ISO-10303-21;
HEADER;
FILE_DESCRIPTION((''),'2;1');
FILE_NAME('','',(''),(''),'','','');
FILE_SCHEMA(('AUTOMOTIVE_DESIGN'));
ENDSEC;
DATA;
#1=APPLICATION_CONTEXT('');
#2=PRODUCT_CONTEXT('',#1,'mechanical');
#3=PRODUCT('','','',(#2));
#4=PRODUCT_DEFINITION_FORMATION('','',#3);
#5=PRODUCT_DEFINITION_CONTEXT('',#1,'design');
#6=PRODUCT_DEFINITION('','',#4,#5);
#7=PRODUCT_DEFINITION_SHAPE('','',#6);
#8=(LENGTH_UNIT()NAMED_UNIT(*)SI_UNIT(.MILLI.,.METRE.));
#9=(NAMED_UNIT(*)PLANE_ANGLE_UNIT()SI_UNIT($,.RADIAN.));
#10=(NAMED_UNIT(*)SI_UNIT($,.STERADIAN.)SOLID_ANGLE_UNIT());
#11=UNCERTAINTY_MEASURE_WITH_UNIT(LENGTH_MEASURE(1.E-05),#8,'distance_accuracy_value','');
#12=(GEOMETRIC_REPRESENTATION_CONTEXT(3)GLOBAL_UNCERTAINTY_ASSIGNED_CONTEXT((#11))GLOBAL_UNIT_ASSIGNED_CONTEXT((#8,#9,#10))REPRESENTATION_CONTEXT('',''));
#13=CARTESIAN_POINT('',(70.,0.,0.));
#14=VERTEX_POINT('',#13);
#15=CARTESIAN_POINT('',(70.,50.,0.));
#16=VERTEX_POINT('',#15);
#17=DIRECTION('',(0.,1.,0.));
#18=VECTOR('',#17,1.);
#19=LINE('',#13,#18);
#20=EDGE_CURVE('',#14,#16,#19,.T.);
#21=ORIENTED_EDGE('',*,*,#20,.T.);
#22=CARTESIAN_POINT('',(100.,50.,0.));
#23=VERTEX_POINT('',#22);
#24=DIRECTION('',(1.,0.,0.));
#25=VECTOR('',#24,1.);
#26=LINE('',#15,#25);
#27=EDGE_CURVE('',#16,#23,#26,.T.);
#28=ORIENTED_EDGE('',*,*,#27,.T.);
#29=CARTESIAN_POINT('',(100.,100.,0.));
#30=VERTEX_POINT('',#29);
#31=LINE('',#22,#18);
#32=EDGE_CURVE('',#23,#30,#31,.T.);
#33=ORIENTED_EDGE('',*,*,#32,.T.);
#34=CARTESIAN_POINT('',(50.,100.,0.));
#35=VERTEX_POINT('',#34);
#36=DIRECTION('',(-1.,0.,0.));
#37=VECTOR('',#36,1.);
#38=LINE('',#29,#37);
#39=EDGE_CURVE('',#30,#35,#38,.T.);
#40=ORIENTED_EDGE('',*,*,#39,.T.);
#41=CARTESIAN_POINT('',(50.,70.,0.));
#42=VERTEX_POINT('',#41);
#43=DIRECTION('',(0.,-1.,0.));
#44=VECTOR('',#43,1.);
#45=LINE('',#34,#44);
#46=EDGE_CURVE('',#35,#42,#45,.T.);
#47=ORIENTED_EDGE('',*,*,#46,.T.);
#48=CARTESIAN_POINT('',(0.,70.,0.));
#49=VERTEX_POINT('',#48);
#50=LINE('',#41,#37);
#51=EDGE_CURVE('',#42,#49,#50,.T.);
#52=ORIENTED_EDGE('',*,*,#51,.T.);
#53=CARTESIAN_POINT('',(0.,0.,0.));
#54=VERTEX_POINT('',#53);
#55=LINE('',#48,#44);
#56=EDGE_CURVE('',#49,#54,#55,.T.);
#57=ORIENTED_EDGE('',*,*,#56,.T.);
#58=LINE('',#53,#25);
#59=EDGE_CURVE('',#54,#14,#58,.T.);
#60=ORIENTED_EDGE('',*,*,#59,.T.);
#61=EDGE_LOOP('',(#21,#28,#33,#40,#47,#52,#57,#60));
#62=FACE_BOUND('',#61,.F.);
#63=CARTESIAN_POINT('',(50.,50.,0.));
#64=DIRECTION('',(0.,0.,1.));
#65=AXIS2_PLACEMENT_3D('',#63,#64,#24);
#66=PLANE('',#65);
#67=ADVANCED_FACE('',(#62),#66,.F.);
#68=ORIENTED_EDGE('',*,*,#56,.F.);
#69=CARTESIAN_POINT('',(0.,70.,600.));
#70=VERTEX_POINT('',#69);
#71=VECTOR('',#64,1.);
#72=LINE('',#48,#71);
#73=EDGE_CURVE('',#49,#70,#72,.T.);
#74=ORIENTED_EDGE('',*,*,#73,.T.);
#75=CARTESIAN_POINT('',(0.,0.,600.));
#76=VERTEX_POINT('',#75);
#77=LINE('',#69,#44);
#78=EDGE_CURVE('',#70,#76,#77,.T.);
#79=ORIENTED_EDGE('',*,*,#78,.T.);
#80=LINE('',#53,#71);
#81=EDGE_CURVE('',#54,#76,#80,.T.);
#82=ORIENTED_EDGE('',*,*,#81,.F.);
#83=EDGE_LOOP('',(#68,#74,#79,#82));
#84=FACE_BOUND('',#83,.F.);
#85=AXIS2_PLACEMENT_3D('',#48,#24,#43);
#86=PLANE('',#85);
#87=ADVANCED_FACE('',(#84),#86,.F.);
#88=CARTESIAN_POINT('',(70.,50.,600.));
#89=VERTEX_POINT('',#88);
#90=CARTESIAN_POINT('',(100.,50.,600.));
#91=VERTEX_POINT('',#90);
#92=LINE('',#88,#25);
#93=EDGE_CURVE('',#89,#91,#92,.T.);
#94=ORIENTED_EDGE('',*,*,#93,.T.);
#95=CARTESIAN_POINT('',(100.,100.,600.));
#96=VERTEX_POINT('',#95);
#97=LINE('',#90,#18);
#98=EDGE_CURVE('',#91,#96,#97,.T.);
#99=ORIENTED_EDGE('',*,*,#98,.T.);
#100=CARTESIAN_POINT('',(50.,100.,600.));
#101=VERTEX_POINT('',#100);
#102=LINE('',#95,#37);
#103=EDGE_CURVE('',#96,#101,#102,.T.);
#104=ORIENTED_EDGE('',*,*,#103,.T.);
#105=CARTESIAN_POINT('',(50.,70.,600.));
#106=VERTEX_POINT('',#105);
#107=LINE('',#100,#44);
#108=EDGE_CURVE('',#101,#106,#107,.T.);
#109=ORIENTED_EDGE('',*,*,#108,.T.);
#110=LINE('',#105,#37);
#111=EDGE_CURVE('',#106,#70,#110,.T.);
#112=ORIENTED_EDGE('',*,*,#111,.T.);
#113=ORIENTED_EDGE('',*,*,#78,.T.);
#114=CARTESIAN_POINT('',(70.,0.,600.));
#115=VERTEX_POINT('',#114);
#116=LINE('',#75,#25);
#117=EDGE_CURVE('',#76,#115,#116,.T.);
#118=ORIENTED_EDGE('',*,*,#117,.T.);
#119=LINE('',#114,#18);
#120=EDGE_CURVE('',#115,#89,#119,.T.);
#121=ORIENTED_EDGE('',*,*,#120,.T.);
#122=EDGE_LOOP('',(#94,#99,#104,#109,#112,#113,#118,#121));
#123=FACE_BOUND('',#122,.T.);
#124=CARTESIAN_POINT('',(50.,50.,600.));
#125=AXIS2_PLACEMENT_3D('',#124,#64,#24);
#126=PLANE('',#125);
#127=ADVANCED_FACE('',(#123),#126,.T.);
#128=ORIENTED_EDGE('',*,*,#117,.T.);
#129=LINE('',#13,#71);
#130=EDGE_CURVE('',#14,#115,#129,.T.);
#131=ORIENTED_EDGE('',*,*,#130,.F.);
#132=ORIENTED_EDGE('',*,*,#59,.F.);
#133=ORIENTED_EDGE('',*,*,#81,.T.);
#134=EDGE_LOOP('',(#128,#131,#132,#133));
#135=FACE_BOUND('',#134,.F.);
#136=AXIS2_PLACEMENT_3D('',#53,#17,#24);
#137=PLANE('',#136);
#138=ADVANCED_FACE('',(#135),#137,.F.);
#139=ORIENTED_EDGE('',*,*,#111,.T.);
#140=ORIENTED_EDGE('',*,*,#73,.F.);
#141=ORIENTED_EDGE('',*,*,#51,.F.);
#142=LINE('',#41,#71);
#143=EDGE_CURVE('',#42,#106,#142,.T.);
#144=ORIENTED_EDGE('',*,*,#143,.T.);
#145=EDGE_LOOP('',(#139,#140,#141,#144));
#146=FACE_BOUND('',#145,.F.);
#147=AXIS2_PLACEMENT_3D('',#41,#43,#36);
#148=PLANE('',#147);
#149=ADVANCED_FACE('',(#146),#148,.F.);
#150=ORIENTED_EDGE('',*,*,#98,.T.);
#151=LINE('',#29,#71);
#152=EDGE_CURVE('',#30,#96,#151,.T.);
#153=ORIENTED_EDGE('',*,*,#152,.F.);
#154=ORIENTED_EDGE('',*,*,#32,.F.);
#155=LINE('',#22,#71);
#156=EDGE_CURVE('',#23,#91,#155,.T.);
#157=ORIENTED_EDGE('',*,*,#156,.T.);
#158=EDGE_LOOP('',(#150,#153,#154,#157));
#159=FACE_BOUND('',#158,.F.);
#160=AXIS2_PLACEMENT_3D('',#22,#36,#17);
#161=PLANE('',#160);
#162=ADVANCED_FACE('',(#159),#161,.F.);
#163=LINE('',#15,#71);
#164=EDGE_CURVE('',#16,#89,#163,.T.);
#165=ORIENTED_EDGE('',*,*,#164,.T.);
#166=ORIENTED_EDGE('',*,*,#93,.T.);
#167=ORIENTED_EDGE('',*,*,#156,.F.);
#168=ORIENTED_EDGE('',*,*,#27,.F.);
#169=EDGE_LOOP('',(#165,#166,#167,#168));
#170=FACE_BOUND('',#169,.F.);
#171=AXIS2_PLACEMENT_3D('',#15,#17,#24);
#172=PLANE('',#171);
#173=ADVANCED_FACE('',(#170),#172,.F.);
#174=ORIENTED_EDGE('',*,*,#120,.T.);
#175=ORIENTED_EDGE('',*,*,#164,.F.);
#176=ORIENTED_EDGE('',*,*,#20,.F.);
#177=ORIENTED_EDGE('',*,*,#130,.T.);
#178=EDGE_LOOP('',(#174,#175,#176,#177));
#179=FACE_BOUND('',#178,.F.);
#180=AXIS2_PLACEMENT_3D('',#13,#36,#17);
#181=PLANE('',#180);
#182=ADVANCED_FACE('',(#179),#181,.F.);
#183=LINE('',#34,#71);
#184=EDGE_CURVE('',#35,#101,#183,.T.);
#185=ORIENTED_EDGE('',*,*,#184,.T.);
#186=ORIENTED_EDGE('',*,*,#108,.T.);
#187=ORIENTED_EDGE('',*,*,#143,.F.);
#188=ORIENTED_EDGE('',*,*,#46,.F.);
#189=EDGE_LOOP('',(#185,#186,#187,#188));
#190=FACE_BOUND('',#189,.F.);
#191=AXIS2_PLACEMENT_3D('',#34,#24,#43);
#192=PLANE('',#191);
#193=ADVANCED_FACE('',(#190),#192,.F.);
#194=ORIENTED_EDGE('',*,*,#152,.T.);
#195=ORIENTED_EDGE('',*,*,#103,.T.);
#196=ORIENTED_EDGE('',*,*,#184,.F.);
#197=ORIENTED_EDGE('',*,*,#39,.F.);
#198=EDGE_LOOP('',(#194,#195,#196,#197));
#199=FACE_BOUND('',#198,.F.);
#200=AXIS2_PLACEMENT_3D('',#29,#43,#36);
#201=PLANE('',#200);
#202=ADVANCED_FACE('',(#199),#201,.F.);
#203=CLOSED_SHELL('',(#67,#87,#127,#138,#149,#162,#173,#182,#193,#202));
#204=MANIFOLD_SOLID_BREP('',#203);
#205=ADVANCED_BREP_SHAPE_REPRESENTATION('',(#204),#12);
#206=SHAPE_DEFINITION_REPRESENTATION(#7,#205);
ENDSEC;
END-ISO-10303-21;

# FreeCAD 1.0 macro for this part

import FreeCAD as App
import Part
import Sketcher


def add_polygon(sketch, points):
    """Adds a closed chain of lines whose ends are joined by coincident constraints."""
    first, n = sketch.GeometryCount, len(points)
    for a, b in zip(points, points[1:] + points[:1]):
        sketch.addGeometry(Part.LineSegment(App.Vector(*a, 0), App.Vector(*b, 0)), False)
    for i in range(n):
        sketch.addConstraint(Sketcher.Constraint("Coincident", first + i, 2, first + (i + 1) % n, 1))

doc = App.newDocument("Part")
params = doc.addObject("Spreadsheet::Sheet", "Params")
for row, (alias, value) in enumerate([
    ("sketch1_width", "70 mm"),
    ("sketch1_width2", "30 mm"),
    ("pad1_length", "600 mm"),
], start=1):
    params.set(f"A{row}", alias)
    params.set(f"B{row}", "=" + value)
    params.setAlias(f"B{row}", alias)

body = doc.addObject("PartDesign::Body", "Body")

# Sketch on XY plane
sketch1 = body.newObject("Sketcher::SketchObject", "Sketch")
sketch1.AttachmentSupport = (doc.getObject("XY_Plane"), [""])
sketch1.MapMode = "FlatFace"
add_polygon(sketch1, [(0, 70), (0, 0), (70, 0), (70, 50), (100, 50), (100, 100), (50, 100), (50, 70)])  # lines 0-7
sketch1.addConstraint(Sketcher.Constraint("Vertical", 0))
sketch1.addConstraint(Sketcher.Constraint("Horizontal", 1))
sketch1.addConstraint(Sketcher.Constraint("Vertical", 2))
sketch1.addConstraint(Sketcher.Constraint("Horizontal", 3))
sketch1.addConstraint(Sketcher.Constraint("Vertical", 4))
sketch1.addConstraint(Sketcher.Constraint("Horizontal", 5))
sketch1.addConstraint(Sketcher.Constraint("Vertical", 6))
sketch1.addConstraint(Sketcher.Constraint("Horizontal", 7))
sketch1.addConstraint(Sketcher.Constraint("Coincident", 0, 2, -1, 1))
sketch1.addConstraint(Sketcher.Constraint("Equal", 5, 7))
sketch1.addConstraint(Sketcher.Constraint("Equal", 1, 0))
sketch1.addConstraint(Sketcher.Constraint("Equal", 7, 2))
sketch1.addConstraint(Sketcher.Constraint("Equal", 2, 4))
sketch1.addConstraint(Sketcher.Constraint("DistanceX", 1, 1, 1, 2, 70.0))
sketch1.addConstraint(Sketcher.Constraint("DistanceX", 3, 1, 3, 2, 30.0))
sketch1.setExpression("Constraints[21]", "Params.sketch1_width")
sketch1.setExpression("Constraints[22]", "Params.sketch1_width2")
pad1 = body.newObject("PartDesign::Pad", "Pad")
pad1.Profile = sketch1
pad1.setExpression("Length", "Params.pad1_length")
body2 = doc.addObject("PartDesign::Body", "Body001")
doc.recompute()

body2.BaseFeature = body
doc.recompute()
body.Visibility = False

doc.recompute()
